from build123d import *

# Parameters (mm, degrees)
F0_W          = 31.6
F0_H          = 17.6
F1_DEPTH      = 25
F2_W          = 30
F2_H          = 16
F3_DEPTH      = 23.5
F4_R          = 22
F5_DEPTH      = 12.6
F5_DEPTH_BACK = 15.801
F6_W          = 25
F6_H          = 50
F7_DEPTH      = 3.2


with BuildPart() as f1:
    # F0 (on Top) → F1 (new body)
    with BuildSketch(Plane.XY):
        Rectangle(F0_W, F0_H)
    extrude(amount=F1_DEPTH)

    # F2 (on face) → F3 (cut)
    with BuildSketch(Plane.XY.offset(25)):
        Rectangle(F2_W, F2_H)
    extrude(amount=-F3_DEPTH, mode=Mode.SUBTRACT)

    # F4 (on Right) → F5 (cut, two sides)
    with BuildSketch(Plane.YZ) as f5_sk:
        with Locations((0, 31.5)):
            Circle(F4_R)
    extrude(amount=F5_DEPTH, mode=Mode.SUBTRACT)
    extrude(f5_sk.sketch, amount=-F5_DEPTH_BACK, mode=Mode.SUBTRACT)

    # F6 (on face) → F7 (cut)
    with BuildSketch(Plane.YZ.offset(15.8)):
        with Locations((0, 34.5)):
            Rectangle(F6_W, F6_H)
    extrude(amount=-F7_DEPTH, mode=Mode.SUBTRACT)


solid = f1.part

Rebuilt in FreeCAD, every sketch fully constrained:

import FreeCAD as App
import Part
import Sketcher

V = App.Vector

doc = App.newDocument("Part")
body = doc.addObject("PartDesign::Body", "Body")

# Sketch on XY plane
sketch1 = doc.addObject("Sketcher::SketchObject", "Sketch")
body.addObject(sketch1)
sketch1.AttachmentSupport = (doc.XY_Plane, [""])
sketch1.MapMode = "FlatFace"
sketch1.addGeometry([
    Part.LineSegment(V(-16, 9, 0), V(-16, -9, 0)),
    Part.LineSegment(V(-16, -9, 0), V(16, -9, 0)),
    Part.LineSegment(V(16, -9, 0), V(16, 9, 0)),
    Part.LineSegment(V(16, 9, 0), V(-16, 9, 0)),
], False)
sketch1.addConstraint([
    Sketcher.Constraint("Coincident", 0, 2, 1, 1),
    Sketcher.Constraint("Coincident", 1, 2, 2, 1),
    Sketcher.Constraint("Coincident", 2, 2, 3, 1),
    Sketcher.Constraint("Coincident", 3, 2, 0, 1),
    Sketcher.Constraint("Vertical", 0),
    Sketcher.Constraint("Horizontal", 1),
    Sketcher.Constraint("Vertical", 2),
    Sketcher.Constraint("Horizontal", 3),
    Sketcher.Constraint("Symmetric", 0, 2, 2, 2, -1, 1),
    Sketcher.Constraint("DistanceX", 1, 1, 1, 2, 31.6),
    Sketcher.Constraint("DistanceY", 0, 2, 0, 1, 17.6),
])
pad1 = doc.addObject("PartDesign::Pad", "Pad")
body.addObject(pad1)
pad1.Profile = sketch1
pad1.Length = 25

# Sketch on XY plane
sketch2 = doc.addObject("Sketcher::SketchObject", "Sketch001")
body.addObject(sketch2)
sketch2.AttachmentSupport = (doc.XY_Plane, [""])
sketch2.MapMode = "FlatFace"
sketch2.AttachmentOffset = App.Placement(V(0, 0, 25), App.Rotation())
sketch2.addGeometry([
    Part.LineSegment(V(-15, 8, 0), V(-15, -8, 0)),
    Part.LineSegment(V(-15, -8, 0), V(15, -8, 0)),
    Part.LineSegment(V(15, -8, 0), V(15, 8, 0)),
    Part.LineSegment(V(15, 8, 0), V(-15, 8, 0)),
], False)
sketch2.addConstraint([
    Sketcher.Constraint("Coincident", 0, 2, 1, 1),
    Sketcher.Constraint("Coincident", 1, 2, 2, 1),
    Sketcher.Constraint("Coincident", 2, 2, 3, 1),
    Sketcher.Constraint("Coincident", 3, 2, 0, 1),
    Sketcher.Constraint("Vertical", 0),
    Sketcher.Constraint("Horizontal", 1),
    Sketcher.Constraint("Vertical", 2),
    Sketcher.Constraint("Horizontal", 3),
    Sketcher.Constraint("Symmetric", 0, 2, 2, 2, -1, 1),
    Sketcher.Constraint("DistanceX", 1, 1, 1, 2, 30.0),
    Sketcher.Constraint("DistanceY", 0, 2, 0, 1, 16.0),
])
pocket1 = doc.addObject("PartDesign::Pocket", "Pocket")
body.addObject(pocket1)
pocket1.Profile = sketch2
pocket1.Length = 23.5

# Sketch on YZ plane
sketch3 = doc.addObject("Sketcher::SketchObject", "Sketch002")
body.addObject(sketch3)
sketch3.AttachmentSupport = (doc.YZ_Plane, [""])
sketch3.MapMode = "FlatFace"
sketch3.addGeometry(Part.Circle(V(0, 32, 0), V(0, 0, 1), 22), False)
sketch3.addConstraint([
    Sketcher.Constraint("PointOnObject", 0, 3, -2),
    Sketcher.Constraint("Diameter", 0, 44.0),
    Sketcher.Constraint("DistanceY", -1, 1, 0, 3, 31.5),
])
pocket2 = doc.addObject("PartDesign::Pocket", "Pocket001")
body.addObject(pocket2)
pocket2.Profile = sketch3
pocket2.Type = "TwoLengths"
pocket2.Length = 12.6
pocket2.Length2 = 15.801
pocket2.Reversed = True

# Sketch on YZ plane
sketch4 = doc.addObject("Sketcher::SketchObject", "Sketch003")
body.addObject(sketch4)
sketch4.AttachmentSupport = (doc.YZ_Plane, [""])
sketch4.MapMode = "FlatFace"
sketch4.AttachmentOffset = App.Placement(V(0, 0, 15.8), App.Rotation())
sketch4.addGeometry([
    Part.LineSegment(V(-12, 60, 0), V(-12, 10, 0)),
    Part.LineSegment(V(-12, 10, 0), V(12, 10, 0)),
    Part.LineSegment(V(12, 10, 0), V(12, 60, 0)),
    Part.LineSegment(V(12, 60, 0), V(-12, 60, 0)),
], False)
sketch4.addConstraint([
    Sketcher.Constraint("Coincident", 0, 2, 1, 1),
    Sketcher.Constraint("Coincident", 1, 2, 2, 1),
    Sketcher.Constraint("Coincident", 2, 2, 3, 1),
    Sketcher.Constraint("Coincident", 3, 2, 0, 1),
    Sketcher.Constraint("Vertical", 0),
    Sketcher.Constraint("Horizontal", 1),
    Sketcher.Constraint("Vertical", 2),
    Sketcher.Constraint("Horizontal", 3),
    Sketcher.Constraint("DistanceX", 1, 1, 1, 2, 25.0),
    Sketcher.Constraint("DistanceY", 0, 2, 0, 1, 50.0),
    Sketcher.Constraint("DistanceX", 0, 2, -1, 1, 12.5),
    Sketcher.Constraint("DistanceY", -1, 1, 0, 2, 9.5),
])
pocket3 = doc.addObject("PartDesign::Pocket", "Pocket002")
body.addObject(pocket3)
pocket3.Profile = sketch4
pocket3.Length = 3.2

doc.recompute()
